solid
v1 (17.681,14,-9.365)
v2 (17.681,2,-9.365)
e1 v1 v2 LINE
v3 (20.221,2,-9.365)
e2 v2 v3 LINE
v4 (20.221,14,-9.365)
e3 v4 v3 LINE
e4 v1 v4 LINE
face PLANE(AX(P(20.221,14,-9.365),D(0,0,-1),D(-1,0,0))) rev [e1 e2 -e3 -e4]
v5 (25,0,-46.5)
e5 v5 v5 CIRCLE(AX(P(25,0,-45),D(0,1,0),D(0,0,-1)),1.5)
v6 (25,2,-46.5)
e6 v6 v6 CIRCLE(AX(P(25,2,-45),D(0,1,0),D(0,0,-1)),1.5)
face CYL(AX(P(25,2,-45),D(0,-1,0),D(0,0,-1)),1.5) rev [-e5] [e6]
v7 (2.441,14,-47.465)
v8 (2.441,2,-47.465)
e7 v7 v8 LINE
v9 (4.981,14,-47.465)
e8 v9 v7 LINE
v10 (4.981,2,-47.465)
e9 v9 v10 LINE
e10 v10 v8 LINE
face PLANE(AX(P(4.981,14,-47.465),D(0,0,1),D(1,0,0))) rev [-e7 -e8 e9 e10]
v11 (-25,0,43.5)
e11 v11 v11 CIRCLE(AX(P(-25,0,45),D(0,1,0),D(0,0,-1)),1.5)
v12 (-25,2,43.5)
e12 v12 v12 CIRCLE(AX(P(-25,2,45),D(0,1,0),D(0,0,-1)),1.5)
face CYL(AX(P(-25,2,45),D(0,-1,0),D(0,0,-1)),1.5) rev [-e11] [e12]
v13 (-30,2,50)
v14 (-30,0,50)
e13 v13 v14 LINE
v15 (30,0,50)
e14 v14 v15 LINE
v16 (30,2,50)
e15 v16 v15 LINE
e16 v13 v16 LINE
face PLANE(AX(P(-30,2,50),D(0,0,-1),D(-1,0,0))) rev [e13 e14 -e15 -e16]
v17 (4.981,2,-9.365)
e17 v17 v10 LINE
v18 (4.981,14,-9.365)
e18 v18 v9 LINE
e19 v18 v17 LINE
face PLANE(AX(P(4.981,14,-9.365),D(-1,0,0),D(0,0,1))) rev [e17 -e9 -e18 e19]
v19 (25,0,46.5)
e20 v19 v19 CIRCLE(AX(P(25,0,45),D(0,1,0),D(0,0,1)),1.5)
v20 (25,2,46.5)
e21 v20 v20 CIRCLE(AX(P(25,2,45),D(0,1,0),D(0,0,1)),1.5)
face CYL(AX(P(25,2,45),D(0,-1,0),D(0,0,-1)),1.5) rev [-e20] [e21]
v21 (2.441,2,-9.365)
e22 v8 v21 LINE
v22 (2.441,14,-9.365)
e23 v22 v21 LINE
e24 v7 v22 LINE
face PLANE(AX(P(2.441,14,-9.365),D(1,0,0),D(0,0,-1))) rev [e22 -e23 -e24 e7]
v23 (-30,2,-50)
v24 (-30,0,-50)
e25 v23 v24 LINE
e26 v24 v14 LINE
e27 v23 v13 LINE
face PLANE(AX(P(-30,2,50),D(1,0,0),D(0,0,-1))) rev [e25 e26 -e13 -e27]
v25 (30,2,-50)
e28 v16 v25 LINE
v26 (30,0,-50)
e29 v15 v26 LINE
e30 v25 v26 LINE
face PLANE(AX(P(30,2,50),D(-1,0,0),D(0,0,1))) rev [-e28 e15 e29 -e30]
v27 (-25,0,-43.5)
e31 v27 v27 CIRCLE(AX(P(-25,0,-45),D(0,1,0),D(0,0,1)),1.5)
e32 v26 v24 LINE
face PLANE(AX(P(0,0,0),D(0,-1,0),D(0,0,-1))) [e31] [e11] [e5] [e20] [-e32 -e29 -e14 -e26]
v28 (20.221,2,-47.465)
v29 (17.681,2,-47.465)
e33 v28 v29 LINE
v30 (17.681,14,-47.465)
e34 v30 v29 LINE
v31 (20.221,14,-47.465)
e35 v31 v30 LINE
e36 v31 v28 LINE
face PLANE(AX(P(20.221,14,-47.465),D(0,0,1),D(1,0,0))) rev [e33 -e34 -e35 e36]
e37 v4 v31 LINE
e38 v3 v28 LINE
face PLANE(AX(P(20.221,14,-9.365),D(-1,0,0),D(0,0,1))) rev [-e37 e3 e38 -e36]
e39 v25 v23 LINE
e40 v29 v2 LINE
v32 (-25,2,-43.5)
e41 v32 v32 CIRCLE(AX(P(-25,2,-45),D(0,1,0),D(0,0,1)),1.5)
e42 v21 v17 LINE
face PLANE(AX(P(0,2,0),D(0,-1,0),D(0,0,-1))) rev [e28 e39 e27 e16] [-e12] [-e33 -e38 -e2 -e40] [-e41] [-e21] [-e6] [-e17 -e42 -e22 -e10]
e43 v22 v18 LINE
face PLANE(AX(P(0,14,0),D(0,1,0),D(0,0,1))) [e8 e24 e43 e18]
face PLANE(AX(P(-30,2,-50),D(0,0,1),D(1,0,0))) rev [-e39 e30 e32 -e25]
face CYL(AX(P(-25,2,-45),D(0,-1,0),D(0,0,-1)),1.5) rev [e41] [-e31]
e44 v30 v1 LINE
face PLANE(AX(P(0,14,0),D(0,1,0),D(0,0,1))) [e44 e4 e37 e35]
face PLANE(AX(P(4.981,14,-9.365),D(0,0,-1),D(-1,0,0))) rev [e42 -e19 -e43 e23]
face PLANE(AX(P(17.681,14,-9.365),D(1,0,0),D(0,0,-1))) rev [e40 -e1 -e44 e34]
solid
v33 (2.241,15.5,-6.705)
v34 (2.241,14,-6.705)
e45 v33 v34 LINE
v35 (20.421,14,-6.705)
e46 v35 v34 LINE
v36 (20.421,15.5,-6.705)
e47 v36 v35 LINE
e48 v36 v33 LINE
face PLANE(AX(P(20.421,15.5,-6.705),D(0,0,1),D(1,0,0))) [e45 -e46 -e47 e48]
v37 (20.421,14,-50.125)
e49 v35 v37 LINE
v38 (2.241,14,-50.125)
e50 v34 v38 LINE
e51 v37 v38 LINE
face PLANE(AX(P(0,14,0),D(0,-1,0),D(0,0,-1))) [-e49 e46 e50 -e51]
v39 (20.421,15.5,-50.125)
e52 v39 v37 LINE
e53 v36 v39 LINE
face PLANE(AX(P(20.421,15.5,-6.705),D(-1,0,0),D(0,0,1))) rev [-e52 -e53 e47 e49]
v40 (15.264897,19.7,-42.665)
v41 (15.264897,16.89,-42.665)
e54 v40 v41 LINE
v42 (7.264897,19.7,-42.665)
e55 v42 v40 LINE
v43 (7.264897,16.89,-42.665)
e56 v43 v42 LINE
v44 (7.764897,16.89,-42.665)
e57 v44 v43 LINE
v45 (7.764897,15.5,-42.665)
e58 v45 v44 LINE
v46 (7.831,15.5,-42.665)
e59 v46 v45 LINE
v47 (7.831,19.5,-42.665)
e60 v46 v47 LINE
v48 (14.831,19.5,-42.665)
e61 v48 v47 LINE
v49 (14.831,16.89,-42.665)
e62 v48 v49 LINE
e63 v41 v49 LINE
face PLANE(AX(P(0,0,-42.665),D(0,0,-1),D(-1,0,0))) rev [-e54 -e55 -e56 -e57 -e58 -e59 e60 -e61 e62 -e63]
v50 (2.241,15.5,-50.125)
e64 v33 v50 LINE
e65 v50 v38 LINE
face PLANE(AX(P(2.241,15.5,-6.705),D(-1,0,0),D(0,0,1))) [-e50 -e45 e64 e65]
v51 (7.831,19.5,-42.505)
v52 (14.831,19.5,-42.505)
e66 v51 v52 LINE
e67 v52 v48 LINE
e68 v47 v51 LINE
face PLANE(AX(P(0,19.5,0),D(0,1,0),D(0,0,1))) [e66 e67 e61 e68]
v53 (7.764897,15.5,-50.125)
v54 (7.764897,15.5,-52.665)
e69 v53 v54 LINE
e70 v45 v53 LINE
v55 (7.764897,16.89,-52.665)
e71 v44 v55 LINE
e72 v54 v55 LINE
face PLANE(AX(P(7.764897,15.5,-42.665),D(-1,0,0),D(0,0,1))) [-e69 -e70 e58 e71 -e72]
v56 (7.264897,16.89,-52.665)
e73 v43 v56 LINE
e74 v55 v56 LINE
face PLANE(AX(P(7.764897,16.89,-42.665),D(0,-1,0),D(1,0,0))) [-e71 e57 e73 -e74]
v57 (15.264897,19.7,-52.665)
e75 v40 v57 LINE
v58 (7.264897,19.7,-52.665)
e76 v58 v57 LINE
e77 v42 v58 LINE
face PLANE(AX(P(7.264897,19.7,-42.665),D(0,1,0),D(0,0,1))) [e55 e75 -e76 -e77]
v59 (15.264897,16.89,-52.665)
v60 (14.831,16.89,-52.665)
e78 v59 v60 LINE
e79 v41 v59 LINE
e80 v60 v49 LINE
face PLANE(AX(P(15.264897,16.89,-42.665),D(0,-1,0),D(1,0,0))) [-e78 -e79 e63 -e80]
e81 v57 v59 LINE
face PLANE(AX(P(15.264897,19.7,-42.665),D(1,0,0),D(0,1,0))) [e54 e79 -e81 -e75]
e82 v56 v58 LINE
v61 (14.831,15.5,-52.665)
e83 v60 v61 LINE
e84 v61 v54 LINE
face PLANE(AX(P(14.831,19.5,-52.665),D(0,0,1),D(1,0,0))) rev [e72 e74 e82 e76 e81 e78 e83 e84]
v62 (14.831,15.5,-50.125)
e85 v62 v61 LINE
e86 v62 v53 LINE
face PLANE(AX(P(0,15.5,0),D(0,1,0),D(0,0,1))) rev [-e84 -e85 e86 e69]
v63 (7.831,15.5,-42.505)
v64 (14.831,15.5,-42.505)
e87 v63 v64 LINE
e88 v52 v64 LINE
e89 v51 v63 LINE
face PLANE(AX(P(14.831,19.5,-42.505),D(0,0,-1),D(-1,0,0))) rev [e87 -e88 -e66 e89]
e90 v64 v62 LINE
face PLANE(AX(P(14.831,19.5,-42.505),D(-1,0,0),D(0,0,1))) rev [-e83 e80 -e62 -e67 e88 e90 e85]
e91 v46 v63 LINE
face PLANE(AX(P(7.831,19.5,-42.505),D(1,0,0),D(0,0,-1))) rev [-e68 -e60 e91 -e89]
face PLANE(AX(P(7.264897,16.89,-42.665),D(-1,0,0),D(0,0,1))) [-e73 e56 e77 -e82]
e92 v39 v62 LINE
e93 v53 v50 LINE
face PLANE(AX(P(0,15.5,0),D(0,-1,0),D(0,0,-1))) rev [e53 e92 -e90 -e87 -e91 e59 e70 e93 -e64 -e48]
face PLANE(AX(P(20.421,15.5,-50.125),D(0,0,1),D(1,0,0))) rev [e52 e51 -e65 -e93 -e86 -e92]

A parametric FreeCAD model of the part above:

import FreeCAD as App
import Part
import Sketcher

V = App.Vector

doc = App.newDocument("Part")
body = doc.addObject("PartDesign::Body", "Body")

sketch1 = body.newObject("Sketcher::SketchObject", "Sketch")
sketch1.AttachmentSupport = (doc.getObject("XZ_Plane"), [""])
sketch1.MapMode = "FlatFace"
sketch1.addGeometry([
    Part.LineSegment(V(-30, -50, 0), V(-30, 50, 0)),
    Part.LineSegment(V(-30, 50, 0), V(30, 50, 0)),
    Part.LineSegment(V(30, 50, 0), V(30, -50, 0)),
    Part.LineSegment(V(30, -50, 0), V(-30, -50, 0)),
    Part.Circle(V(-25, 45, 0), V(0, 0, 1), 1.5),
    Part.Circle(V(25, 45, 0), V(0, 0, 1), 1.5),
    Part.Circle(V(-25, -45, 0), V(0, 0, 1), 1.5),
    Part.Circle(V(25, -45, 0), V(0, 0, 1), 1.5),
], False)
sketch1.addConstraint([
    Sketcher.Constraint("Coincident", 0, 2, 1, 1),
    Sketcher.Constraint("Coincident", 1, 2, 2, 1),
    Sketcher.Constraint("Coincident", 2, 2, 3, 1),
    Sketcher.Constraint("Coincident", 3, 2, 0, 1),
    Sketcher.Constraint("Vertical", 0),
    Sketcher.Constraint("Horizontal", 1),
    Sketcher.Constraint("Vertical", 2),
    Sketcher.Constraint("Horizontal", 3),
    Sketcher.Constraint("Equal", 4, 5),
    Sketcher.Constraint("Equal", 5, 6),
    Sketcher.Constraint("Equal", 6, 7),
    Sketcher.Constraint("Symmetric", 5, 3, 6, 3, -1, 1),
    Sketcher.Constraint("Symmetric", 4, 3, 7, 3, -1, 1),
    Sketcher.Constraint("Symmetric", 0, 2, 2, 2, -1, 1),
    Sketcher.Constraint("Symmetric", 4, 3, 5, 3, -2),
    Sketcher.Constraint("Diameter", 4, 3.0),
    Sketcher.Constraint("DistanceX", 1, 1, 1, 2, 60.0),
    Sketcher.Constraint("DistanceY", 0, 1, 0, 2, 100.0),
    Sketcher.Constraint("DistanceX", 4, 3, -1, 1, 25.0),
    Sketcher.Constraint("DistanceY", -1, 1, 4, 3, 45.0),
])
pad1 = body.newObject("PartDesign::Pad", "Pad")
pad1.Profile = sketch1
pad1.Length = 2
pad1.Reversed = True

sketch2 = body.newObject("Sketcher::SketchObject", "Sketch001")
sketch2.AttachmentSupport = (doc.getObject("XZ_Plane"), [""])
sketch2.MapMode = "FlatFace"
sketch2.AttachmentOffset = App.Placement(V(0, 0, -2), App.Rotation())
sketch2.addGeometry([
    Part.LineSegment(V(2.4, -47.5, 0), V(2.4, -9.4, 0)),
    Part.LineSegment(V(2.4, -9.4, 0), V(5, -9.4, 0)),
    Part.LineSegment(V(5, -9.4, 0), V(5, -47.5, 0)),
    Part.LineSegment(V(5, -47.5, 0), V(2.4, -47.5, 0)),
    Part.LineSegment(V(17.7, -47.5, 0), V(17.7, -9.4, 0)),
    Part.LineSegment(V(17.7, -9.4, 0), V(20.2, -9.4, 0)),
    Part.LineSegment(V(20.2, -9.4, 0), V(20.2, -47.5, 0)),
    Part.LineSegment(V(20.2, -47.5, 0), V(17.7, -47.5, 0)),
], False)
sketch2.addConstraint([
    Sketcher.Constraint("Coincident", 0, 2, 1, 1),
    Sketcher.Constraint("Coincident", 1, 2, 2, 1),
    Sketcher.Constraint("Coincident", 2, 2, 3, 1),
    Sketcher.Constraint("Coincident", 3, 2, 0, 1),
    Sketcher.Constraint("Coincident", 4, 2, 5, 1),
    Sketcher.Constraint("Coincident", 5, 2, 6, 1),
    Sketcher.Constraint("Coincident", 6, 2, 7, 1),
    Sketcher.Constraint("Coincident", 7, 2, 4, 1),
    Sketcher.Constraint("Vertical", 0),
    Sketcher.Constraint("Horizontal", 1),
    Sketcher.Constraint("Vertical", 2),
    Sketcher.Constraint("Horizontal", 3),
    Sketcher.Constraint("Vertical", 4),
    Sketcher.Constraint("Horizontal", 5),
    Sketcher.Constraint("Vertical", 6),
    Sketcher.Constraint("Horizontal", 7),
    Sketcher.Constraint("Horizontal", 1, 2, 4, 2),
    Sketcher.Constraint("Horizontal", 3, 2, 6, 2),
    Sketcher.Constraint("Equal", 3, 5),
    Sketcher.Constraint("DistanceY", 0, 1, 0, 2, 38.1),
    Sketcher.Constraint("DistanceX", 1, 1, 1, 2, 2.54),
    Sketcher.Constraint("DistanceX", 1, 2, 4, 2, 12.7),
    Sketcher.Constraint("DistanceX", -1, 1, 0, 2, 2.441),
    Sketcher.Constraint("DistanceY", 0, 2, -1, 1, 9.365),
])
pad2 = body.newObject("PartDesign::Pad", "Pad001")
pad2.Profile = sketch2
pad2.Length = 12
pad2.Reversed = True
body2 = doc.addObject("PartDesign::Body", "Body001")

sketch3 = body2.newObject("Sketcher::SketchObject", "Sketch002")
sketch3.AttachmentSupport = (doc.getObject("XZ_Plane001"), [""])
sketch3.MapMode = "FlatFace"
sketch3.AttachmentOffset = App.Placement(V(0, 0, -14), App.Rotation())
sketch3.addGeometry([
    Part.LineSegment(V(2, -50, 0), V(2, -7, 0)),
    Part.LineSegment(V(2, -7, 0), V(20, -7, 0)),
    Part.LineSegment(V(20, -7, 0), V(20, -50, 0)),
    Part.LineSegment(V(20, -50, 0), V(2, -50, 0)),
], False)
sketch3.addConstraint([
    Sketcher.Constraint("Coincident", 0, 2, 1, 1),
    Sketcher.Constraint("Coincident", 1, 2, 2, 1),
    Sketcher.Constraint("Coincident", 2, 2, 3, 1),
    Sketcher.Constraint("Coincident", 3, 2, 0, 1),
    Sketcher.Constraint("Vertical", 0),
    Sketcher.Constraint("Horizontal", 1),
    Sketcher.Constraint("Vertical", 2),
    Sketcher.Constraint("Horizontal", 3),
    Sketcher.Constraint("DistanceX", 1, 1, 1, 2, 18.18),
    Sketcher.Constraint("DistanceY", 0, 1, 0, 2, 43.42),
    Sketcher.Constraint("DistanceX", -1, 1, 0, 2, 2.241),
    Sketcher.Constraint("DistanceY", 0, 2, -1, 1, 6.705),
])
pad3 = body2.newObject("PartDesign::Pad", "Pad002")
pad3.Profile = sketch3
pad3.Length = 1.5
pad3.Reversed = True

sketch4 = body2.newObject("Sketcher::SketchObject", "Sketch003")
sketch4.AttachmentSupport = (doc.getObject("XZ_Plane001"), [""])
sketch4.MapMode = "FlatFace"
sketch4.AttachmentOffset = App.Placement(V(0, 0, -15.5), App.Rotation())
sketch4.addGeometry([
    Part.LineSegment(V(8, -53, 0), V(8, -43, 0)),
    Part.LineSegment(V(8, -43, 0), V(15, -43, 0)),
    Part.LineSegment(V(15, -43, 0), V(15, -53, 0)),
    Part.LineSegment(V(15, -53, 0), V(8, -53, 0)),
], False)
sketch4.addConstraint([
    Sketcher.Constraint("Coincident", 0, 2, 1, 1),
    Sketcher.Constraint("Coincident", 1, 2, 2, 1),
    Sketcher.Constraint("Coincident", 2, 2, 3, 1),
    Sketcher.Constraint("Coincident", 3, 2, 0, 1),
    Sketcher.Constraint("Vertical", 0),
    Sketcher.Constraint("Horizontal", 1),
    Sketcher.Constraint("Vertical", 2),
    Sketcher.Constraint("Horizontal", 3),
    Sketcher.Constraint("DistanceX", 1, 1, 1, 2, 7.0),
    Sketcher.Constraint("DistanceY", 0, 1, 0, 2, 10.16),
    Sketcher.Constraint("DistanceX", -1, 1, 0, 2, 7.831),
    Sketcher.Constraint("DistanceY", 0, 2, -1, 1, 42.505),
])
pad4 = body2.newObject("PartDesign::Pad", "Pad003")
pad4.Profile = sketch4
pad4.Length = 4
pad4.Reversed = True

sketch5 = body2.newObject("Sketcher::SketchObject", "Sketch004")
sketch5.AttachmentSupport = (doc.getObject("XY_Plane001"), [""])
sketch5.MapMode = "FlatFace"
sketch5.AttachmentOffset = App.Placement(V(0, 0, -52.665), App.Rotation())
sketch5.addGeometry([
    Part.LineSegment(V(15.3, 16.9, 0), V(14.8, 16.9, 0)),
    Part.LineSegment(V(14.8, 16.9, 0), V(14.8, 15.5, 0)),
    Part.LineSegment(V(14.8, 15.5, 0), V(7.8, 15.5, 0)),
    Part.LineSegment(V(7.8, 15.5, 0), V(7.8, 16.9, 0)),
    Part.LineSegment(V(7.8, 16.9, 0), V(7.3, 16.9, 0)),
    Part.LineSegment(V(7.3, 16.9, 0), V(7.3, 19.7, 0)),
    Part.LineSegment(V(7.3, 19.7, 0), V(15.3, 19.7, 0)),
    Part.LineSegment(V(15.3, 19.7, 0), V(15.3, 16.9, 0)),
], False)
sketch5.addConstraint([
    Sketcher.Constraint("Coincident", 0, 2, 1, 1),
    Sketcher.Constraint("Coincident", 1, 2, 2, 1),
    Sketcher.Constraint("Coincident", 2, 2, 3, 1),
    Sketcher.Constraint("Coincident", 3, 2, 4, 1),
    Sketcher.Constraint("Coincident", 4, 2, 5, 1),
    Sketcher.Constraint("Coincident", 5, 2, 6, 1),
    Sketcher.Constraint("Coincident", 6, 2, 7, 1),
    Sketcher.Constraint("Coincident", 7, 2, 0, 1),
    Sketcher.Constraint("Horizontal", 0),
    Sketcher.Constraint("Vertical", 1),
    Sketcher.Constraint("Horizontal", 2),
    Sketcher.Constraint("Vertical", 3),
    Sketcher.Constraint("Horizontal", 4),
    Sketcher.Constraint("Vertical", 5),
    Sketcher.Constraint("Horizontal", 6),
    Sketcher.Constraint("Vertical", 7),
    Sketcher.Constraint("Horizontal", 0, 2, 3, 2),
    Sketcher.Constraint("Equal", 0, 4),
    Sketcher.Constraint("DistanceX", 2, 2, 2, 1, 7.0),
    Sketcher.Constraint("DistanceX", 6, 1, 6, 2, 8.0),
    Sketcher.Constraint("DistanceY", 1, 2, 1, 1, 1.39),
    Sketcher.Constraint("DistanceY", 5, 1, 5, 2, 2.81),
    Sketcher.Constraint("DistanceY", -1, 1, 1, 2, 15.5),
    Sketcher.Constraint("DistanceX", -1, 1, 0, 2, 14.764897),
])
pad5 = body2.newObject("PartDesign::Pad", "Pad004")
pad5.Profile = sketch5
pad5.Length = 10

doc.recompute()
